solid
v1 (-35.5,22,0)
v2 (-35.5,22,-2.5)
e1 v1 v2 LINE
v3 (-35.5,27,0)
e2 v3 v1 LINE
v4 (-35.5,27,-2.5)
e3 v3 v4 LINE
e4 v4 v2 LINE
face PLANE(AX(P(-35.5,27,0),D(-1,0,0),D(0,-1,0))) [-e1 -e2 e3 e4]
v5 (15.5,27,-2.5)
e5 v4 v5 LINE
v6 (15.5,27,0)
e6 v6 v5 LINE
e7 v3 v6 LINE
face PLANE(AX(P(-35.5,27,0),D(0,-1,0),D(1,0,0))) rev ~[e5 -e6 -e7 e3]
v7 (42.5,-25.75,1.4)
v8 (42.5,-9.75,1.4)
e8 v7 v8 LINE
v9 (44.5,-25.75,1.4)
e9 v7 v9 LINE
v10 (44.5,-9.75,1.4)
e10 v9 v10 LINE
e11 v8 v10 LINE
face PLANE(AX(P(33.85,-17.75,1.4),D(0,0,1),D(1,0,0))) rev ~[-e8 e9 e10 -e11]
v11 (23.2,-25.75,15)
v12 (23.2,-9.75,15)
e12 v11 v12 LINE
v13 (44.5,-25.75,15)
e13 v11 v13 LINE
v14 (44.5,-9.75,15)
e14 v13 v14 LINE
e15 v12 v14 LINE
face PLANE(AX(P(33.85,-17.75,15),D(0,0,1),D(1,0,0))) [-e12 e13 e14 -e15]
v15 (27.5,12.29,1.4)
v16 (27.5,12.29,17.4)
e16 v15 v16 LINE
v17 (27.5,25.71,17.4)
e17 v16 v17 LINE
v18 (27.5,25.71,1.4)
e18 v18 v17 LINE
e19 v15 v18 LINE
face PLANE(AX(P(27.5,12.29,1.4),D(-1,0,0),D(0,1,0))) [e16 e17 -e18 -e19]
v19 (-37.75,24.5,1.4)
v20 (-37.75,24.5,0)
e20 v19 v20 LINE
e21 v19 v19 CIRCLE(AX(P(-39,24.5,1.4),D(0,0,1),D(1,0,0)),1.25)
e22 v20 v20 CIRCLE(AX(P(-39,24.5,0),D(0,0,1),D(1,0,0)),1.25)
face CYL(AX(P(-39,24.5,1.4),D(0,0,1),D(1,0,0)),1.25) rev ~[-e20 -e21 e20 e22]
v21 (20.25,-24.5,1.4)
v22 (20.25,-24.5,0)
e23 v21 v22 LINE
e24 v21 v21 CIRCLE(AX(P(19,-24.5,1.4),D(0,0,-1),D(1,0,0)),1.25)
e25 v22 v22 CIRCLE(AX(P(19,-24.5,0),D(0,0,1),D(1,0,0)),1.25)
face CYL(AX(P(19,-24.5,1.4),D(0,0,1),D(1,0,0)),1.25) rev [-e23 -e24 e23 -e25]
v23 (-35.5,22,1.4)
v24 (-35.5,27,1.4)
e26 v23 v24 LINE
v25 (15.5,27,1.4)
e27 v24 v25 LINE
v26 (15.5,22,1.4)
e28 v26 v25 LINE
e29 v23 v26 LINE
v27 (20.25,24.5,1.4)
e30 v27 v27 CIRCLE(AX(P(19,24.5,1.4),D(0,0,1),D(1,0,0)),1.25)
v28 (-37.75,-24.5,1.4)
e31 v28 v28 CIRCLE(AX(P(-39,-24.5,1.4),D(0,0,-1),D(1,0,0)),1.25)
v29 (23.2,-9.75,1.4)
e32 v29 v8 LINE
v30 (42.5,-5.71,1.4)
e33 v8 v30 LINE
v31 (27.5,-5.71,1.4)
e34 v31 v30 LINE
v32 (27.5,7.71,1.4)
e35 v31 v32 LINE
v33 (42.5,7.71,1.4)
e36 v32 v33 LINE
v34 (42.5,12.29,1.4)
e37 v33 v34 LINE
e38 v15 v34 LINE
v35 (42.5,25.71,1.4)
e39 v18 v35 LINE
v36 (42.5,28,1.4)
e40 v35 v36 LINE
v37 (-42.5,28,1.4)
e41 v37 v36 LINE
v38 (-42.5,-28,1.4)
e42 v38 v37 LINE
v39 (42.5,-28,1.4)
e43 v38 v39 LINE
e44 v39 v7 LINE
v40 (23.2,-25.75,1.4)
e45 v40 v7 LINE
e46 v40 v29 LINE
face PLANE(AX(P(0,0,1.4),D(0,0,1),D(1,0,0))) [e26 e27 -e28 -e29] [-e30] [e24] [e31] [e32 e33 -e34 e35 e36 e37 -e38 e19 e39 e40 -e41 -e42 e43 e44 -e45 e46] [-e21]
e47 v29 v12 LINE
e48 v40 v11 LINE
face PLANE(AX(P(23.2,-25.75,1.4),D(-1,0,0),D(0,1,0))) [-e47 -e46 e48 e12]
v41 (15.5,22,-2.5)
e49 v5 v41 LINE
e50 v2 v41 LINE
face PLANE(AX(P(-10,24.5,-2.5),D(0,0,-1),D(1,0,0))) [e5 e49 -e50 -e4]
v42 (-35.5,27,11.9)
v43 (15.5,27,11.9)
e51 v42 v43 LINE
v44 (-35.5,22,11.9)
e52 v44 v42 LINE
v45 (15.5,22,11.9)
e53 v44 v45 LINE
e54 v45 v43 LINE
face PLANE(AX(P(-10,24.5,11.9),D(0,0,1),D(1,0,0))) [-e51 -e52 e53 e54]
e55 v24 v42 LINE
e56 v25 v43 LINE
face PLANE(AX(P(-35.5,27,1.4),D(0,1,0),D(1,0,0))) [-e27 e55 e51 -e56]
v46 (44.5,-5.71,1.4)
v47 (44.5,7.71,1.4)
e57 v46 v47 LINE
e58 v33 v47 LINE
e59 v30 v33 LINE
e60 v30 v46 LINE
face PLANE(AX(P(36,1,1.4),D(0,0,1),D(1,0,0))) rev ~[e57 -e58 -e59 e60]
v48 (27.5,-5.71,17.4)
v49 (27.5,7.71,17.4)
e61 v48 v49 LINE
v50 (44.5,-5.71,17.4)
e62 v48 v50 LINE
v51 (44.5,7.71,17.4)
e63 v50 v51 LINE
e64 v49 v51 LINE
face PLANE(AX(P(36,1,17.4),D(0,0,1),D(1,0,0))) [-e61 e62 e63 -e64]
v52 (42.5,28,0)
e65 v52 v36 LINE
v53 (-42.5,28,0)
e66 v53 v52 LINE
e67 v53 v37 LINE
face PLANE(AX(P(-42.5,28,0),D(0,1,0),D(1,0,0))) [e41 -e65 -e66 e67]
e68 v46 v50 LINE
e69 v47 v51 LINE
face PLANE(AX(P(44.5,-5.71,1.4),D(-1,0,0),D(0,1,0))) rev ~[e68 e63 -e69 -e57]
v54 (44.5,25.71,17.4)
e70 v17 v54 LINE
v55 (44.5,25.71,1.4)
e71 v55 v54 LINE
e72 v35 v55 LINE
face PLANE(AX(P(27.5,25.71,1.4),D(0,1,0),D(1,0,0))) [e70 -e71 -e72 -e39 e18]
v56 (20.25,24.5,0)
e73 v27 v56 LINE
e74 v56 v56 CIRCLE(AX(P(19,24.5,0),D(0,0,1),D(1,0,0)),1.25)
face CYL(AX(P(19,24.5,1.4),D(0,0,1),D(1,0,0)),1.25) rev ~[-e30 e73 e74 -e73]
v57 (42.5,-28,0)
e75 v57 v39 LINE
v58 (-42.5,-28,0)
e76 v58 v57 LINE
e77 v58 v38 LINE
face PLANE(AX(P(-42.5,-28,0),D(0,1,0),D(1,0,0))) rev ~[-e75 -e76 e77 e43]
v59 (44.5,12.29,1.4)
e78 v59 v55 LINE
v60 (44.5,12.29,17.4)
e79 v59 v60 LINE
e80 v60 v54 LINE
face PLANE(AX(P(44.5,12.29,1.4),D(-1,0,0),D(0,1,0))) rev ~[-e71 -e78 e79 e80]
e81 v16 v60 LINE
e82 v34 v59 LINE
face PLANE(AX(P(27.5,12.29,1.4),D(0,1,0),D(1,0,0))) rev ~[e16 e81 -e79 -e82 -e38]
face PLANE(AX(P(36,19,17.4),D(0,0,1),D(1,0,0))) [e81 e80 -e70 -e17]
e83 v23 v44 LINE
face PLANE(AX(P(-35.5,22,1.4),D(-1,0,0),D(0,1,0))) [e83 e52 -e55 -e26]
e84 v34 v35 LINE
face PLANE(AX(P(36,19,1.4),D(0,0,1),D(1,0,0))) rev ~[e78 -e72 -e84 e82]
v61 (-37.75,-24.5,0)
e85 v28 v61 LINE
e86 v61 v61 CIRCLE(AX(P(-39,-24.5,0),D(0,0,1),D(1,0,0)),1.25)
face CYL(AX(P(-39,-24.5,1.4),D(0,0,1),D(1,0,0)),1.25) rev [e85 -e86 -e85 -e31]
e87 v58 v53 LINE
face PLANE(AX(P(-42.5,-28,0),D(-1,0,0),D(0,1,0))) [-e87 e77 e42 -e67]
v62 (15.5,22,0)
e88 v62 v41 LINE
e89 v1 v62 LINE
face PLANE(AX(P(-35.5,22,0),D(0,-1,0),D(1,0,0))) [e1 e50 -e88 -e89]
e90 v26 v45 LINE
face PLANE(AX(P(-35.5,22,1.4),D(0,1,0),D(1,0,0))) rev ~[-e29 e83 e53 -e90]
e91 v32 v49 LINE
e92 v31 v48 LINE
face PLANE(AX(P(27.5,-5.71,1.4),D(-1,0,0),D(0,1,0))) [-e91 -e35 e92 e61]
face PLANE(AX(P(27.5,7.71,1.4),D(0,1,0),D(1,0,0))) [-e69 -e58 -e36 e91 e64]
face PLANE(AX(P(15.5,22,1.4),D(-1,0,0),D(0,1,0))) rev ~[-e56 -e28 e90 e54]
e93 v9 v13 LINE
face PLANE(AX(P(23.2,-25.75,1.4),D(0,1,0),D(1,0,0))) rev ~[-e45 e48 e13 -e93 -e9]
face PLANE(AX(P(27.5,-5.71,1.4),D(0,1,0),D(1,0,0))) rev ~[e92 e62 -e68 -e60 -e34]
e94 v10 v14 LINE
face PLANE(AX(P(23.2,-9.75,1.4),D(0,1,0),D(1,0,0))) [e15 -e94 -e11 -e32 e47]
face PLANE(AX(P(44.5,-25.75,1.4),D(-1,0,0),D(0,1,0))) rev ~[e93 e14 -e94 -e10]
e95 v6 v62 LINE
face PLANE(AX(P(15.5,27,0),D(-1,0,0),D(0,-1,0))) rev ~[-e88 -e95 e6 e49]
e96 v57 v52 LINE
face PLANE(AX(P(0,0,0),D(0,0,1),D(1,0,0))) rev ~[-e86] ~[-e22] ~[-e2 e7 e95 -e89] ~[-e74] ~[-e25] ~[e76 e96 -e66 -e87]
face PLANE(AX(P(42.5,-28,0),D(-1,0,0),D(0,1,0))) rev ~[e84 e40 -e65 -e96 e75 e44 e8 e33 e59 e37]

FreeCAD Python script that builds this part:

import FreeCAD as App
import Part
import Sketcher


def add_polygon(sketch, points):
    """Adds a closed chain of lines whose ends are joined by coincident constraints."""
    first, n = sketch.GeometryCount, len(points)
    for a, b in zip(points, points[1:] + points[:1]):
        sketch.addGeometry(Part.LineSegment(App.Vector(*a, 0), App.Vector(*b, 0)), False)
    for i in range(n):
        sketch.addConstraint(Sketcher.Constraint("Coincident", first + i, 2, first + (i + 1) % n, 1))

doc = App.newDocument("Part")
body = doc.addObject("PartDesign::Body", "Body")

# Sketch on XY plane
sketch1 = body.newObject("Sketcher::SketchObject", "Sketch")
sketch1.AttachmentSupport = (doc.getObject("XY_Plane"), [""])
sketch1.MapMode = "FlatFace"
add_polygon(sketch1, [(-42, 28), (-42, -28), (42, -28), (42, 28)])  # lines 0-3
sketch1.addConstraint([
    Sketcher.Constraint("Vertical", 0),
    Sketcher.Constraint("Horizontal", 1),
    Sketcher.Constraint("Vertical", 2),
    Sketcher.Constraint("Horizontal", 3),
    Sketcher.Constraint("Symmetric", 0, 2, 2, 2, -1, 1),
    Sketcher.Constraint("DistanceX", 1, 1, 1, 2, 85.0),
    Sketcher.Constraint("DistanceY", 0, 2, 0, 1, 56.0),
])
pad1 = body.newObject("PartDesign::Pad", "Pad")
pad1.Profile = sketch1
pad1.Length = 1.4

# Sketch on XY plane
sketch2 = body.newObject("Sketcher::SketchObject", "Sketch001")
sketch2.AttachmentSupport = (doc.getObject("XY_Plane"), [""])
sketch2.MapMode = "FlatFace"
sketch2.AttachmentOffset = App.Placement(App.Vector(0, 0, 1.4), App.Rotation())
sketch2.addGeometry([
    Part.Circle(App.Vector(-39, 24.5, 0), App.Vector(0, 0, 1), 1.2),
    Part.Circle(App.Vector(19, 24.5, 0), App.Vector(0, 0, 1), 1.2),
], False)
sketch2.addConstraint([
    Sketcher.Constraint("Equal", 0, 1),
    Sketcher.Constraint("Horizontal", 0, 3, 1, 3),
    Sketcher.Constraint("Diameter", 0, 2.5),
    Sketcher.Constraint("DistanceX", 0, 3, -1, 1, 39.0),
    Sketcher.Constraint("DistanceX", -1, 1, 1, 3, 19.0),
    Sketcher.Constraint("DistanceY", -1, 1, 0, 3, 24.5),
])
pocket1 = body.newObject("PartDesign::Pocket", "Pocket")
pocket1.Profile = sketch2
pocket1.Type = "ThroughAll"
doc.recompute()

mirrored = body.newObject("PartDesign::Mirrored", "Mirrored")
mirrored.Originals = [pocket1]
mirrored.MirrorPlane = (doc.getObject("XZ_Plane"), [""])
body.Tip = mirrored

# Sketch on XY plane
sketch3 = body.newObject("Sketcher::SketchObject", "Sketch002")
sketch3.AttachmentSupport = (doc.getObject("XY_Plane"), [""])
sketch3.MapMode = "FlatFace"
sketch3.AttachmentOffset = App.Placement(App.Vector(0, 0, 1.4), App.Rotation())
add_polygon(sketch3, [(28, 26), (28, 12), (44, 12), (44, 26)])  # lines 0-3
add_polygon(sketch3, [(28, 8), (28, -6), (44, -6), (44, 8)])  # lines 4-7
sketch3.addConstraint([
    Sketcher.Constraint("Vertical", 0),
    Sketcher.Constraint("Horizontal", 1),
    Sketcher.Constraint("Vertical", 2),
    Sketcher.Constraint("Horizontal", 3),
    Sketcher.Constraint("Vertical", 4),
    Sketcher.Constraint("Horizontal", 5),
    Sketcher.Constraint("Vertical", 6),
    Sketcher.Constraint("Horizontal", 7),
    Sketcher.Constraint("Vertical", 3, 2, 4, 2),
    Sketcher.Constraint("Vertical", 2, 2, 5, 2),
    Sketcher.Constraint("Equal", 2, 4),
    Sketcher.Constraint("DistanceX", 1, 1, 1, 2, 17.0),
    Sketcher.Constraint("DistanceY", 4, 2, 0, 2, 18.0),
    Sketcher.Constraint("DistanceY", 0, 2, 0, 1, 13.42),
    Sketcher.Constraint("DistanceX", -1, 1, 0, 2, 27.5),
    Sketcher.Constraint("DistanceY", -1, 1, 0, 2, 12.29),
])
pad2 = body.newObject("PartDesign::Pad", "Pad001")
pad2.Profile = sketch3
pad2.Length = 16

# Sketch on XY plane
sketch4 = body.newObject("Sketcher::SketchObject", "Sketch003")
sketch4.AttachmentSupport = (doc.getObject("XY_Plane"), [""])
sketch4.MapMode = "FlatFace"
sketch4.AttachmentOffset = App.Placement(App.Vector(0, 0, 1.4), App.Rotation())
add_polygon(sketch4, [(23, -10), (23, -26), (44, -26), (44, -10)])  # lines 0-3
sketch4.addConstraint([
    Sketcher.Constraint("Vertical", 0),
    Sketcher.Constraint("Horizontal", 1),
    Sketcher.Constraint("Vertical", 2),
    Sketcher.Constraint("Horizontal", 3),
    Sketcher.Constraint("DistanceY", 0, 2, 0, 1, 16.0),
    Sketcher.Constraint("DistanceX", 1, 1, 1, 2, 21.3),
    Sketcher.Constraint("DistanceX", -1, 1, 0, 2, 23.2),
    Sketcher.Constraint("DistanceY", 0, 2, -1, 1, 25.75),
])
pad3 = body.newObject("PartDesign::Pad", "Pad002")
pad3.Profile = sketch4
pad3.Length = 13.6

# Sketch on XY plane
sketch5 = body.newObject("Sketcher::SketchObject", "Sketch004")
sketch5.AttachmentSupport = (doc.getObject("XY_Plane"), [""])
sketch5.MapMode = "FlatFace"
sketch5.AttachmentOffset = App.Placement(App.Vector(0, 0, 1.4), App.Rotation())
add_polygon(sketch5, [(-36, 27), (-36, 22), (16, 22), (16, 27)])  # lines 0-3
sketch5.addConstraint([
    Sketcher.Constraint("Vertical", 0),
    Sketcher.Constraint("Horizontal", 1),
    Sketcher.Constraint("Vertical", 2),
    Sketcher.Constraint("Horizontal", 3),
    Sketcher.Constraint("DistanceX", 1, 1, 1, 2, 51.0),
    Sketcher.Constraint("DistanceY", 0, 2, 0, 1, 5.0),
    Sketcher.Constraint("DistanceY", -1, 1, 0, 2, 22.0),
    Sketcher.Constraint("DistanceX", 0, 2, -1, 1, 35.5),
])
pad4 = body.newObject("PartDesign::Pad", "Pad003")
pad4.Profile = sketch5
pad4.Length = 10.5

# Sketch on XY plane
sketch6 = body.newObject("Sketcher::SketchObject", "Sketch005")
sketch6.AttachmentSupport = (doc.getObject("XY_Plane"), [""])
sketch6.MapMode = "FlatFace"
add_polygon(sketch6, [(-36, 22), (-36, 27), (16, 27), (16, 22)])  # lines 0-3
sketch6.addConstraint([
    Sketcher.Constraint("Vertical", 0),
    Sketcher.Constraint("Horizontal", 1),
    Sketcher.Constraint("Vertical", 2),
    Sketcher.Constraint("Horizontal", 3),
    Sketcher.Constraint("DistanceX", 1, 1, 1, 2, 51.0),
    Sketcher.Constraint("DistanceY", 0, 1, 0, 2, 5.0),
    Sketcher.Constraint("DistanceY", -1, 1, 0, 2, 27.0),
    Sketcher.Constraint("DistanceX", 0, 2, -1, 1, 35.5),
])
pad5 = body.newObject("PartDesign::Pad", "Pad004")
pad5.Profile = sketch6
pad5.Length = 2.5
pad5.Reversed = True

doc.recompute()
